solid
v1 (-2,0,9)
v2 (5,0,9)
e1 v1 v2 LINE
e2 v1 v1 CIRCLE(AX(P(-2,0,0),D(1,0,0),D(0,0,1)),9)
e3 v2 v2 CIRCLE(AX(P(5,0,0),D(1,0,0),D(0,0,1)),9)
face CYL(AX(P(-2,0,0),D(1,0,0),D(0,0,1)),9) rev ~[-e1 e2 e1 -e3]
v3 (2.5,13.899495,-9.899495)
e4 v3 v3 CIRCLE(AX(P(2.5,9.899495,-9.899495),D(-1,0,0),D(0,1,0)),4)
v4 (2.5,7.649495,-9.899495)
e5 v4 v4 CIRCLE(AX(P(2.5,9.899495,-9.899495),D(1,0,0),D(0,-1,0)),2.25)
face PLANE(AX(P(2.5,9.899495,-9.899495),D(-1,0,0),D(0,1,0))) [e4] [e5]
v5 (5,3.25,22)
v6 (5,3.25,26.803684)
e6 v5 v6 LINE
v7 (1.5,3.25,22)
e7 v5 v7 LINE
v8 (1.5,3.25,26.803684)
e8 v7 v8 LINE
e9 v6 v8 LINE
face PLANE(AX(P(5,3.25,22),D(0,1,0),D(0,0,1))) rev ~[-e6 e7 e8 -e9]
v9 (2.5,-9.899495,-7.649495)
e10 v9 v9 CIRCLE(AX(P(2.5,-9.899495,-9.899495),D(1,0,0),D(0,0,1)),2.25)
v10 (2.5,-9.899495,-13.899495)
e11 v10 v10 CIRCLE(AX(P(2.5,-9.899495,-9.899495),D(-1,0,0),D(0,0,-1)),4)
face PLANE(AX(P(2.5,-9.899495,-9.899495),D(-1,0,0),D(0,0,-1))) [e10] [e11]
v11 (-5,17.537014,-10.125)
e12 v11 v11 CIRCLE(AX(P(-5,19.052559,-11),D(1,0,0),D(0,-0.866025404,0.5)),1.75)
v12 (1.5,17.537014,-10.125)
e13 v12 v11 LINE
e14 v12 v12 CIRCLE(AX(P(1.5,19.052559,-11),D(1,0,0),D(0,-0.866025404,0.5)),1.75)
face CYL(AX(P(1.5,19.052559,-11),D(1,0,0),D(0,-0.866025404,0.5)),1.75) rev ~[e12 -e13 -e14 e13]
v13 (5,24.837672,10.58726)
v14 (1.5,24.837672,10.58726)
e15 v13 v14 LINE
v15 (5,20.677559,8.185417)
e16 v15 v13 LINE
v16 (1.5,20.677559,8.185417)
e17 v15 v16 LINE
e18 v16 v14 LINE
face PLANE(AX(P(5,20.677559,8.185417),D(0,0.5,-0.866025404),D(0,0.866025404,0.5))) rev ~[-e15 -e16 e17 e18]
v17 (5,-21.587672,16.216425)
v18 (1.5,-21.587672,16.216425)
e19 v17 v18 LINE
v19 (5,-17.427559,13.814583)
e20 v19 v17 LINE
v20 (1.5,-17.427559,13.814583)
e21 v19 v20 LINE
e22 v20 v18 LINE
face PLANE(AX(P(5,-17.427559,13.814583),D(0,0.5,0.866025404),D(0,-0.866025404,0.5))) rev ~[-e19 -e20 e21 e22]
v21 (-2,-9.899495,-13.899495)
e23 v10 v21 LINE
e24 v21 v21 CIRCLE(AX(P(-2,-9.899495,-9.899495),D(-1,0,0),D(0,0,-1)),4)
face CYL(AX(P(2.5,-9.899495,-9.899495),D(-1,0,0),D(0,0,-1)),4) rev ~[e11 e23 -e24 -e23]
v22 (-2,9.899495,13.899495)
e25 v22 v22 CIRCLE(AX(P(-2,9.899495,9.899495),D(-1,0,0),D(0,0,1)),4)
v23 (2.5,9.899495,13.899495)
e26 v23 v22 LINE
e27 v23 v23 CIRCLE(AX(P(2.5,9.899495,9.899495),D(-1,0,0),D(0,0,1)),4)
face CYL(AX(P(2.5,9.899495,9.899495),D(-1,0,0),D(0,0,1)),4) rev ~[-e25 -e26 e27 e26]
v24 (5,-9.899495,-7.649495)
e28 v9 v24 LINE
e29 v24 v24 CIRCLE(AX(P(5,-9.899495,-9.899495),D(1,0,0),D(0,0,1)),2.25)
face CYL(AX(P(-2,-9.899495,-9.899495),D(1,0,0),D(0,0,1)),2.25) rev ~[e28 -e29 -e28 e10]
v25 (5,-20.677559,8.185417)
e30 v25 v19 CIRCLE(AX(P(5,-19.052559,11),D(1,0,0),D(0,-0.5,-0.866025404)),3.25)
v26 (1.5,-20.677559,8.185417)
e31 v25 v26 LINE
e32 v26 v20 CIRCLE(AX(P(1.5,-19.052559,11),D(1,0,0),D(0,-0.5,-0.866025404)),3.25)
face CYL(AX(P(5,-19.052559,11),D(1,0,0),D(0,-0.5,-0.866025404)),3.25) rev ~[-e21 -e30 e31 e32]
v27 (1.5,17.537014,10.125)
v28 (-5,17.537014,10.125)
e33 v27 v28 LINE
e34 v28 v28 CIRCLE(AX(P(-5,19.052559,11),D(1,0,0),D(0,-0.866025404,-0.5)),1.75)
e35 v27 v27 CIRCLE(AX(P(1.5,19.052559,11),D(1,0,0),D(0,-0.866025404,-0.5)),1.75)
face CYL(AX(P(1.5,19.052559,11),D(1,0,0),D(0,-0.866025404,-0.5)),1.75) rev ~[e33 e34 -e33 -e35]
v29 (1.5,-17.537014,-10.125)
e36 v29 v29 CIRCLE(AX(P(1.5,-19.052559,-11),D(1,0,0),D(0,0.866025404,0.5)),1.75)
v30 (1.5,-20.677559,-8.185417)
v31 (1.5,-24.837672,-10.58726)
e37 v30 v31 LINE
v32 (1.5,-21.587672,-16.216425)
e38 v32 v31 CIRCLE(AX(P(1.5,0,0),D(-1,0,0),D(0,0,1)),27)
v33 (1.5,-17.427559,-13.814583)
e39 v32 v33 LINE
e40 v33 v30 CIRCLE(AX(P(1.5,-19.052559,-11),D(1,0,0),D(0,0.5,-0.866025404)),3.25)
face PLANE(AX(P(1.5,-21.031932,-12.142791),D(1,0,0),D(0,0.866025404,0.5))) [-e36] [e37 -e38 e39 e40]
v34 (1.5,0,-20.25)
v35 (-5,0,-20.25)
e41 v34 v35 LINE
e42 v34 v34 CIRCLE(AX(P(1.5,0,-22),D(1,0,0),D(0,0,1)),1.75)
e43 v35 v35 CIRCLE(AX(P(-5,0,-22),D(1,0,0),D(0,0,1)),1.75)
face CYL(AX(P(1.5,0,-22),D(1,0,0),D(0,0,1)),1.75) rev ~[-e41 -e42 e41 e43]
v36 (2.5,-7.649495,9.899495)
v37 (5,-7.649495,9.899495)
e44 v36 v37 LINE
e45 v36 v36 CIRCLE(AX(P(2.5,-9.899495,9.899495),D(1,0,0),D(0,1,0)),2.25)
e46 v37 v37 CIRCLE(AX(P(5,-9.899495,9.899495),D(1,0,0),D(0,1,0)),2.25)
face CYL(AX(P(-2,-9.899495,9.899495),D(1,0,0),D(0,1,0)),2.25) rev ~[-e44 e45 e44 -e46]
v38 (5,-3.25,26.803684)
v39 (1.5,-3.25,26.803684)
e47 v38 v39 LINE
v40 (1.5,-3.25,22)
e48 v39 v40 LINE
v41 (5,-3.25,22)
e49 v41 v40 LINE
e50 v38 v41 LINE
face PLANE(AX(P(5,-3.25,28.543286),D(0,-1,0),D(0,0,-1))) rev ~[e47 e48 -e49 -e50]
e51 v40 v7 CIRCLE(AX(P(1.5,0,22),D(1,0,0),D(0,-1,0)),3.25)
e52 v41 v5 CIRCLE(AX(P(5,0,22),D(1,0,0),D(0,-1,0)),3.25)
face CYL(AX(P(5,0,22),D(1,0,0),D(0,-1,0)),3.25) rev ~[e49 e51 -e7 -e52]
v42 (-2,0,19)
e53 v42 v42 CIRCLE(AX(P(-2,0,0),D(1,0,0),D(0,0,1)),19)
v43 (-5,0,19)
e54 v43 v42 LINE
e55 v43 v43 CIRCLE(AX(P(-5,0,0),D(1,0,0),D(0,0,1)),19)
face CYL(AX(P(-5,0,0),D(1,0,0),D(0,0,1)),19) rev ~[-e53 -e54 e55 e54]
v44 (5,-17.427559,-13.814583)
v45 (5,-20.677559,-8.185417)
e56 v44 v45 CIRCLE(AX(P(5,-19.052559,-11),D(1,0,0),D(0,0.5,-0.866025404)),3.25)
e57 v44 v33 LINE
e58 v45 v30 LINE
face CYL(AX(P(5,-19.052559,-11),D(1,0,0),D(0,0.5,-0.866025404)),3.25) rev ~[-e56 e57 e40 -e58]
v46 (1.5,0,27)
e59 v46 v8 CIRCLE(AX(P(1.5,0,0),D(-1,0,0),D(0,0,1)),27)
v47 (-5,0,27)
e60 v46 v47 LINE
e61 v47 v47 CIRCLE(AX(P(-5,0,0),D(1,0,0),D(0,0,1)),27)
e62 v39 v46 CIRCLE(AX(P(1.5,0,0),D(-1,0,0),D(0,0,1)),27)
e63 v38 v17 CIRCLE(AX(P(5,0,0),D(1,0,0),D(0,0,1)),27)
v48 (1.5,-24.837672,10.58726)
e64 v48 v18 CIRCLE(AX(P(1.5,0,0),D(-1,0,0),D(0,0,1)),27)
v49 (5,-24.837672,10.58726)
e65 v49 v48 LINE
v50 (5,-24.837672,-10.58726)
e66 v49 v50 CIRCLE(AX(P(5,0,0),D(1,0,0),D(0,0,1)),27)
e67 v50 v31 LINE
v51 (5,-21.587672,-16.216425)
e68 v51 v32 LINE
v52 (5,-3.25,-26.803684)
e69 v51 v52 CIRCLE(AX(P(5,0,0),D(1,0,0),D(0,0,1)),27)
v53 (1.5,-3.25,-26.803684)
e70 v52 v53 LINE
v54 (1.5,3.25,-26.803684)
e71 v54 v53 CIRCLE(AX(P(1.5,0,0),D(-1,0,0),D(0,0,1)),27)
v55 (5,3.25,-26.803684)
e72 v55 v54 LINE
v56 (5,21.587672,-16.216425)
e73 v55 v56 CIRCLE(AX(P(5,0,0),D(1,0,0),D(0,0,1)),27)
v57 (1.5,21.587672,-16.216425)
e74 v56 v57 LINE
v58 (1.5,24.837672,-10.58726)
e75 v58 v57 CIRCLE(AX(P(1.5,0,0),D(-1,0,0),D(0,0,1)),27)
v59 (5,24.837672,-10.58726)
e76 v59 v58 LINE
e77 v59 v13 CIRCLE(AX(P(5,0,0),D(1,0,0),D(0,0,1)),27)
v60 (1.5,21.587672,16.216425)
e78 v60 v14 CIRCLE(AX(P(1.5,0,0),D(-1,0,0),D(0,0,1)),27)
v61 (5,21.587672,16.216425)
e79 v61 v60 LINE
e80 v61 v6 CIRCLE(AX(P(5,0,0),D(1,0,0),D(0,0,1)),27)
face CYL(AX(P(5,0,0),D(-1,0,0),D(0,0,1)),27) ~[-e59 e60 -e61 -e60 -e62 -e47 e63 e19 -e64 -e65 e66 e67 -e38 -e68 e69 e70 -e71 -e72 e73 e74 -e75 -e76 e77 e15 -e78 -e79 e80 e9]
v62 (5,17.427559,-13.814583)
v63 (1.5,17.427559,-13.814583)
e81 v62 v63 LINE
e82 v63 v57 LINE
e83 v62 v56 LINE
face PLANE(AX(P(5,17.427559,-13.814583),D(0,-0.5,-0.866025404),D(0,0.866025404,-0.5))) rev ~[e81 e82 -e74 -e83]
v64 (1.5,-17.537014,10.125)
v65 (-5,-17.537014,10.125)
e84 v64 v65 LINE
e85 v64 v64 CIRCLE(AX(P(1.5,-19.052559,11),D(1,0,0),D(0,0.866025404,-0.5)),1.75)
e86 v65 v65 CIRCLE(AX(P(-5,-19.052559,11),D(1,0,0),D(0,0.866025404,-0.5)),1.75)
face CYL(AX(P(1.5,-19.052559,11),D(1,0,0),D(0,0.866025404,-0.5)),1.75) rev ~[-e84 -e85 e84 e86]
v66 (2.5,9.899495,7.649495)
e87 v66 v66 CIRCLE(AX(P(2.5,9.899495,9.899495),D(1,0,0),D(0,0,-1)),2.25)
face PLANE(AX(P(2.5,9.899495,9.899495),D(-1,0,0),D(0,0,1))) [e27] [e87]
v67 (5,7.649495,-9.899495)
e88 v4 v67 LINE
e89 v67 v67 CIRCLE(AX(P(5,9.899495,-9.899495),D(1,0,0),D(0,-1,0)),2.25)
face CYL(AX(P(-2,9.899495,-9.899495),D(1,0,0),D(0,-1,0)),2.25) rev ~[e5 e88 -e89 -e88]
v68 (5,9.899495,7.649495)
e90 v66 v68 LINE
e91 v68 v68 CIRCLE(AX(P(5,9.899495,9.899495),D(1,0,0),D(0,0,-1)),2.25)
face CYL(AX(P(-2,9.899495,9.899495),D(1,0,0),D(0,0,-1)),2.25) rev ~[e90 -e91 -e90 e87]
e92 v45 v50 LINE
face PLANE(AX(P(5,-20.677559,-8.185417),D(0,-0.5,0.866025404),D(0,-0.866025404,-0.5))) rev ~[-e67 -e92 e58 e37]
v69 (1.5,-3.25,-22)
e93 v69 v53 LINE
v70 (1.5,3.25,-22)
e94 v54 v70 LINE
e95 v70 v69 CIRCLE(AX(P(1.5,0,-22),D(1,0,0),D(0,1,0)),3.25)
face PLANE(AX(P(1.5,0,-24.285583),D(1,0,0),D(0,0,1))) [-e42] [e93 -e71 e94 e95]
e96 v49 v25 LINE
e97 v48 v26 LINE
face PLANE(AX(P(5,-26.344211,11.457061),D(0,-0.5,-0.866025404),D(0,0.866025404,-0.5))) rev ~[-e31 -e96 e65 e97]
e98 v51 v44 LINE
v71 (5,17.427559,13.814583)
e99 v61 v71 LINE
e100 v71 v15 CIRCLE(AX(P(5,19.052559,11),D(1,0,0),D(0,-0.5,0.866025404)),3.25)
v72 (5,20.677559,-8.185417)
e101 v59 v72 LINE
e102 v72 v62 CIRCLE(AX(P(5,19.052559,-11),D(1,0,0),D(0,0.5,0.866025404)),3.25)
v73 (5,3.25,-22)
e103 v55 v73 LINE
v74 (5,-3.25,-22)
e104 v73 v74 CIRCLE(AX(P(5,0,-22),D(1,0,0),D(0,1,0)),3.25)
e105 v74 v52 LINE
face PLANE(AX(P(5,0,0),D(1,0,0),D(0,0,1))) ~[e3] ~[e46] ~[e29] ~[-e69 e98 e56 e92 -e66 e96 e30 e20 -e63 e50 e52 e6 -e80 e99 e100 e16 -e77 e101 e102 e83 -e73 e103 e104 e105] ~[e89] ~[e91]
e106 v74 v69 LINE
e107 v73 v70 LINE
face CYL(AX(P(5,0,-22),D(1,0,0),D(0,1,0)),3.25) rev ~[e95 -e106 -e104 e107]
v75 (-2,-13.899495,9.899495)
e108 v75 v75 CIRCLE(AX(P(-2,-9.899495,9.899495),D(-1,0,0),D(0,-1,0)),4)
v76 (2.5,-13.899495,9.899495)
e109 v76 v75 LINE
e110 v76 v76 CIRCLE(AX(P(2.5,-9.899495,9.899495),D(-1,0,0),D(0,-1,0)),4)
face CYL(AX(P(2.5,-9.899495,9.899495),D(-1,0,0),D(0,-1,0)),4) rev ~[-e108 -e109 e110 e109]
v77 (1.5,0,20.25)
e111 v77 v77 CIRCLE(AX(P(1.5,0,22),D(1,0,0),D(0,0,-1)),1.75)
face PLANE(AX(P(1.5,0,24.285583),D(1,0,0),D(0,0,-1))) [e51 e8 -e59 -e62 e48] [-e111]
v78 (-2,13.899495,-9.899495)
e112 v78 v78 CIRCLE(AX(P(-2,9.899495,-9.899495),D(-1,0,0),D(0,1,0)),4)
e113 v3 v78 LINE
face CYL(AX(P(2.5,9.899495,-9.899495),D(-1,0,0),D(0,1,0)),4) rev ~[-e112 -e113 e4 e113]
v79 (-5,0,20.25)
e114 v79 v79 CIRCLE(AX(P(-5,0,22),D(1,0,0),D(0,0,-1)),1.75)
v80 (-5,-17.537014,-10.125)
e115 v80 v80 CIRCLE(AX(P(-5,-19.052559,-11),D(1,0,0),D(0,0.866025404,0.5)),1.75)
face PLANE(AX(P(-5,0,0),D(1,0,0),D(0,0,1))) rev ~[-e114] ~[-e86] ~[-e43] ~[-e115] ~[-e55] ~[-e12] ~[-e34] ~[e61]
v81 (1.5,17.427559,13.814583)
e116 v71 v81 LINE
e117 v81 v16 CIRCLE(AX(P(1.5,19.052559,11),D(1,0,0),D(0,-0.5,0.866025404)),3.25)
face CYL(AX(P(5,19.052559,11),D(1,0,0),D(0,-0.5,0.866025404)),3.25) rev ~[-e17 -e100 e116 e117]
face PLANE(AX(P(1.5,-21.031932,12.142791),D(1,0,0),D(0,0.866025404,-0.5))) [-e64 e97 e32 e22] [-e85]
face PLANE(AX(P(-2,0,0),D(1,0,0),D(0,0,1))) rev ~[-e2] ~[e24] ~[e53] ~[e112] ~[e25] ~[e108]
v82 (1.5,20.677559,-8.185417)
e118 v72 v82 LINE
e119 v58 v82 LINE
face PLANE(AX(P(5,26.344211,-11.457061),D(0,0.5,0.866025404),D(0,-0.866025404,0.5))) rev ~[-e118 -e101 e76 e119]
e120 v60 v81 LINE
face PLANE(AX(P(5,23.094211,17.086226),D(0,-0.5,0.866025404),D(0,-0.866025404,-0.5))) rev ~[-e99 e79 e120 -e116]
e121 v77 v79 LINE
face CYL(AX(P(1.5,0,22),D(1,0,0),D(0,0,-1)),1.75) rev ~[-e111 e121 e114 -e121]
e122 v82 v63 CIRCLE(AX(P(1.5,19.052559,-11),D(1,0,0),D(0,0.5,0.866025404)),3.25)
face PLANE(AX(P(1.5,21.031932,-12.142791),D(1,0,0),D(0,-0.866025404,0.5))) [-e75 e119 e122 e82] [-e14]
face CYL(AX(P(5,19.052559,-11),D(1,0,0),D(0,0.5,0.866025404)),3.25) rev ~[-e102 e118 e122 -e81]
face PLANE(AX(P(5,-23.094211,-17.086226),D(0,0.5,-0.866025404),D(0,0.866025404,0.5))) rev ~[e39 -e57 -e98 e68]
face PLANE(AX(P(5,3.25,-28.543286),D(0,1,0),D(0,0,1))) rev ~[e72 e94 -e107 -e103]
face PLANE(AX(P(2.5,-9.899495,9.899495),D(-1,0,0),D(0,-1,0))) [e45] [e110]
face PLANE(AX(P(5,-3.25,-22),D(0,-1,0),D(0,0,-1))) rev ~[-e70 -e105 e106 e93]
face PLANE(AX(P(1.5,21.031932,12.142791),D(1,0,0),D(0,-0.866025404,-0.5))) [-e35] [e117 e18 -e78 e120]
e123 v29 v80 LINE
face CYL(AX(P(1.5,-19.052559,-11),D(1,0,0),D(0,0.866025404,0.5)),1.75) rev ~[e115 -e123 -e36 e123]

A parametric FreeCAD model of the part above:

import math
import FreeCAD as App
import Part
import Sketcher
from FreeCAD import Vector

doc = App.newDocument("Part")
body = doc.addObject("PartDesign::Body", "Body")

# Sketch on XY plane
sketch1 = body.newObject("Sketcher::SketchObject", "Sketch")
sketch1.AttachmentSupport = (doc.getObject("XY_Plane"), [""])
sketch1.MapMode = "FlatFace"
sketch1.addGeometry([
    Part.LineSegment(Vector(-5, 27, 0), Vector(-5, 19, 0)),  # 0
    Part.LineSegment(Vector(-5, 19, 0), Vector(-2, 19, 0)),  # 1
    Part.LineSegment(Vector(-2, 19, 0), Vector(-2, 9, 0)),  # 2
    Part.LineSegment(Vector(-2, 9, 0), Vector(5, 9, 0)),  # 3
    Part.LineSegment(Vector(5, 9, 0), Vector(5, 27, 0)),  # 4
    Part.LineSegment(Vector(5, 27, 0), Vector(-5, 27, 0)),  # 5
], False)
sketch1.addConstraint([
    Sketcher.Constraint("Coincident", 0, 2, 1, 1),
    Sketcher.Constraint("Coincident", 1, 2, 2, 1),
    Sketcher.Constraint("Coincident", 2, 2, 3, 1),
    Sketcher.Constraint("Coincident", 3, 2, 4, 1),
    Sketcher.Constraint("Coincident", 4, 2, 5, 1),
    Sketcher.Constraint("Coincident", 5, 2, 0, 1),
    Sketcher.Constraint("Vertical", 0),
    Sketcher.Constraint("Horizontal", 1),
    Sketcher.Constraint("Vertical", 2),
    Sketcher.Constraint("Horizontal", 3),
    Sketcher.Constraint("Vertical", 4),
    Sketcher.Constraint("Horizontal", 5),
    Sketcher.Constraint("Equal", 5, 2),
    Sketcher.Constraint("DistanceX", 1, 1, 1, 2, 3.0),
    Sketcher.Constraint("DistanceX", 3, 1, 3, 2, 7.0),
    Sketcher.Constraint("DistanceY", 0, 2, 0, 1, 8.0),
    Sketcher.Constraint("DistanceX", 0, 2, -1, 1, 5.0),
    Sketcher.Constraint("DistanceY", -1, 1, 0, 2, 19.0),
])
revolution = body.newObject("PartDesign::Revolution", "Revolution")
revolution.Profile = sketch1
revolution.ReferenceAxis = (sketch1, ["H_Axis"])
revolution.Angle = 360

# Sketch on YZ plane
sketch2 = body.newObject("Sketcher::SketchObject", "Sketch001")
sketch2.AttachmentSupport = (doc.getObject("YZ_Plane"), [""])
sketch2.MapMode = "FlatFace"
sketch2.AttachmentOffset = App.Placement(Vector(0, 0, 5), App.Rotation())
sketch2.addGeometry([
    Part.LineSegment(Vector(3.25, 22, 0), Vector(3.25, 28.543286, 0)),
    Part.LineSegment(Vector(3.25, 28.543286, 0), Vector(-3.25, 28.543286, 0)),
    Part.LineSegment(Vector(-3.25, 28.543286, 0), Vector(-3.25, 22, 0)),
    Part.ArcOfCircle(Part.Circle(Vector(0, 22, 0), Vector(0, 0, 1), 3.25), math.radians(180), math.radians(360)),
], False)
sketch2.addConstraint([
    Sketcher.Constraint("Coincident", 0, 2, 1, 1),
    Sketcher.Constraint("Coincident", 1, 2, 2, 1),
    Sketcher.Constraint("Tangent", 2, 2, 3, 1),
    Sketcher.Constraint("Tangent", 3, 2, 0, 1),
    Sketcher.Constraint("Vertical", 0),
    Sketcher.Constraint("Horizontal", 1),
    Sketcher.Constraint("Vertical", 2),
    Sketcher.Constraint("PointOnObject", 3, 3, -2),
    Sketcher.Constraint("Radius", 3, 3.25),
    Sketcher.Constraint("DistanceY", -1, 1, 3, 3, 22.0),
    Sketcher.Constraint("DistanceY", 0, 1, 0, 2, 6.543286),
])
pocket1 = body.newObject("PartDesign::Pocket", "Pocket")
pocket1.Profile = sketch2
pocket1.Length = 3.5
doc.recompute()

polarpattern = body.newObject("PartDesign::PolarPattern", "PolarPattern")
polarpattern.Originals = [pocket1]
polarpattern.Axis = (doc.getObject("X_Axis"), [""])
polarpattern.Angle = 360
polarpattern.Occurrences = 6
body.Tip = polarpattern

# Sketch on YZ plane
sketch3 = body.newObject("Sketcher::SketchObject", "Sketch002")
sketch3.AttachmentSupport = (doc.getObject("YZ_Plane"), [""])
sketch3.MapMode = "FlatFace"
sketch3.AttachmentOffset = App.Placement(Vector(0, 0, 1.5), App.Rotation())
sketch3.addGeometry(Part.Circle(Vector(0, 22, 0), Vector(0, 0, 1), 1.75), False)
sketch3.addConstraint([
    Sketcher.Constraint("PointOnObject", 0, 3, -2),
    Sketcher.Constraint("Diameter", 0, 3.5),
    Sketcher.Constraint("DistanceY", -1, 1, 0, 3, 22.0),
])
pocket2 = body.newObject("PartDesign::Pocket", "Pocket001")
pocket2.Profile = sketch3
pocket2.Type = "ThroughAll"
doc.recompute()

polarpattern2 = body.newObject("PartDesign::PolarPattern", "PolarPattern001")
polarpattern2.Originals = [pocket2]
polarpattern2.Axis = (doc.getObject("X_Axis"), [""])
polarpattern2.Angle = 360
polarpattern2.Occurrences = 6
body.Tip = polarpattern2

# Sketch on YZ plane
sketch4 = body.newObject("Sketcher::SketchObject", "Sketch003")
sketch4.AttachmentSupport = (doc.getObject("YZ_Plane"), [""])
sketch4.MapMode = "FlatFace"
sketch4.AttachmentOffset = App.Placement(Vector(0, 0, -2), App.Rotation())
sketch4.addGeometry(Part.Circle(Vector(9.899495, 9.899495, 0), Vector(0, 0, 1), 2.25), False)
sketch4.addConstraint([
    Sketcher.Constraint("Diameter", 0, 4.5),
    Sketcher.Constraint("DistanceX", -1, 1, 0, 3, 9.899495),
    Sketcher.Constraint("DistanceY", -1, 1, 0, 3, 9.899495),
])
doc.recompute()
hole = body.newObject("PartDesign::Hole", "Hole")
hole.Profile = sketch4
hole.ThreadType = "None"
hole.Diameter = 4.5
hole.DepthType = "ThroughAll"
hole.HoleCutType = "Counterbore"
hole.HoleCutDiameter = 8
hole.HoleCutDepth = 4.5
hole.Reversed = True
doc.recompute()

polarpattern3 = body.newObject("PartDesign::PolarPattern", "PolarPattern002")
polarpattern3.Originals = [hole]
polarpattern3.Axis = (doc.getObject("X_Axis"), [""])
polarpattern3.Angle = 360
polarpattern3.Occurrences = 4
body.Tip = polarpattern3

doc.recompute()
